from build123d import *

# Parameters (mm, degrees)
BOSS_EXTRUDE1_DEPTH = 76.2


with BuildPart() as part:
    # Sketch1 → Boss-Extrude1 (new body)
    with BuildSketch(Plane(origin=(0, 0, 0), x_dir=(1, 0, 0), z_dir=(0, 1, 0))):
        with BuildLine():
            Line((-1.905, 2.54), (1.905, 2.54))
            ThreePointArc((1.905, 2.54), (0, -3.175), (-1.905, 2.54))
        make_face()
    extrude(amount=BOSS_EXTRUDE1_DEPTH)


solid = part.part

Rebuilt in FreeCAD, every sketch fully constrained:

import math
import FreeCAD as App
import Part
import Sketcher
from FreeCAD import Vector
Q = App.Units.Quantity

doc = App.newDocument("Part")
params = doc.addObject("Spreadsheet::Sheet", "Params")
for row, (alias, value) in enumerate([
    ("sketch1_radius", "0.125 in"),
    ("sketch1_width", "0.15 in"),
    ("pad1_length", "3 in"),
], start=1):
    params.set(f"A{row}", alias)
    params.set(f"B{row}", "=" + value)
    params.setAlias(f"B{row}", alias)

body = doc.addObject("PartDesign::Body", "Body")

sketch1 = doc.addObject("Sketcher::SketchObject", "Sketch")
body.addObject(sketch1)
sketch1.AttachmentSupport = (doc.XZ_Plane, [""])
sketch1.MapMode = "FlatFace"
sketch1.addGeometry([
    Part.LineSegment(Vector(1.9, -2.5, 0), Vector(-1.9, -2.5, 0)),
    Part.ArcOfCircle(Part.Circle(Vector(0, 0, 0), Vector(0, 0, 1), 3.2), math.radians(-53), math.radians(233)),
], False)
sketch1.addConstraint([
    Sketcher.Constraint("Coincident", 0, 1, 1, 1),
    Sketcher.Constraint("Coincident", 1, 2, 0, 2),
    Sketcher.Constraint("Horizontal", 0),
    Sketcher.Constraint("Coincident", 1, 3, -1, 1),
    Sketcher.Constraint("Radius", 1, Q("0.125 in")),
    Sketcher.Constraint("DistanceX", 0, 2, 0, 1, Q("0.15 in")),
])
sketch1.setExpression("Constraints[4]", "Params.sketch1_radius")
sketch1.setExpression("Constraints[5]", "Params.sketch1_width")
pad1 = doc.addObject("PartDesign::Pad", "Pad")
body.addObject(pad1)
pad1.Profile = sketch1
pad1.setExpression("Length", "Params.pad1_length")
pad1.Reversed = True

doc.recompute()
